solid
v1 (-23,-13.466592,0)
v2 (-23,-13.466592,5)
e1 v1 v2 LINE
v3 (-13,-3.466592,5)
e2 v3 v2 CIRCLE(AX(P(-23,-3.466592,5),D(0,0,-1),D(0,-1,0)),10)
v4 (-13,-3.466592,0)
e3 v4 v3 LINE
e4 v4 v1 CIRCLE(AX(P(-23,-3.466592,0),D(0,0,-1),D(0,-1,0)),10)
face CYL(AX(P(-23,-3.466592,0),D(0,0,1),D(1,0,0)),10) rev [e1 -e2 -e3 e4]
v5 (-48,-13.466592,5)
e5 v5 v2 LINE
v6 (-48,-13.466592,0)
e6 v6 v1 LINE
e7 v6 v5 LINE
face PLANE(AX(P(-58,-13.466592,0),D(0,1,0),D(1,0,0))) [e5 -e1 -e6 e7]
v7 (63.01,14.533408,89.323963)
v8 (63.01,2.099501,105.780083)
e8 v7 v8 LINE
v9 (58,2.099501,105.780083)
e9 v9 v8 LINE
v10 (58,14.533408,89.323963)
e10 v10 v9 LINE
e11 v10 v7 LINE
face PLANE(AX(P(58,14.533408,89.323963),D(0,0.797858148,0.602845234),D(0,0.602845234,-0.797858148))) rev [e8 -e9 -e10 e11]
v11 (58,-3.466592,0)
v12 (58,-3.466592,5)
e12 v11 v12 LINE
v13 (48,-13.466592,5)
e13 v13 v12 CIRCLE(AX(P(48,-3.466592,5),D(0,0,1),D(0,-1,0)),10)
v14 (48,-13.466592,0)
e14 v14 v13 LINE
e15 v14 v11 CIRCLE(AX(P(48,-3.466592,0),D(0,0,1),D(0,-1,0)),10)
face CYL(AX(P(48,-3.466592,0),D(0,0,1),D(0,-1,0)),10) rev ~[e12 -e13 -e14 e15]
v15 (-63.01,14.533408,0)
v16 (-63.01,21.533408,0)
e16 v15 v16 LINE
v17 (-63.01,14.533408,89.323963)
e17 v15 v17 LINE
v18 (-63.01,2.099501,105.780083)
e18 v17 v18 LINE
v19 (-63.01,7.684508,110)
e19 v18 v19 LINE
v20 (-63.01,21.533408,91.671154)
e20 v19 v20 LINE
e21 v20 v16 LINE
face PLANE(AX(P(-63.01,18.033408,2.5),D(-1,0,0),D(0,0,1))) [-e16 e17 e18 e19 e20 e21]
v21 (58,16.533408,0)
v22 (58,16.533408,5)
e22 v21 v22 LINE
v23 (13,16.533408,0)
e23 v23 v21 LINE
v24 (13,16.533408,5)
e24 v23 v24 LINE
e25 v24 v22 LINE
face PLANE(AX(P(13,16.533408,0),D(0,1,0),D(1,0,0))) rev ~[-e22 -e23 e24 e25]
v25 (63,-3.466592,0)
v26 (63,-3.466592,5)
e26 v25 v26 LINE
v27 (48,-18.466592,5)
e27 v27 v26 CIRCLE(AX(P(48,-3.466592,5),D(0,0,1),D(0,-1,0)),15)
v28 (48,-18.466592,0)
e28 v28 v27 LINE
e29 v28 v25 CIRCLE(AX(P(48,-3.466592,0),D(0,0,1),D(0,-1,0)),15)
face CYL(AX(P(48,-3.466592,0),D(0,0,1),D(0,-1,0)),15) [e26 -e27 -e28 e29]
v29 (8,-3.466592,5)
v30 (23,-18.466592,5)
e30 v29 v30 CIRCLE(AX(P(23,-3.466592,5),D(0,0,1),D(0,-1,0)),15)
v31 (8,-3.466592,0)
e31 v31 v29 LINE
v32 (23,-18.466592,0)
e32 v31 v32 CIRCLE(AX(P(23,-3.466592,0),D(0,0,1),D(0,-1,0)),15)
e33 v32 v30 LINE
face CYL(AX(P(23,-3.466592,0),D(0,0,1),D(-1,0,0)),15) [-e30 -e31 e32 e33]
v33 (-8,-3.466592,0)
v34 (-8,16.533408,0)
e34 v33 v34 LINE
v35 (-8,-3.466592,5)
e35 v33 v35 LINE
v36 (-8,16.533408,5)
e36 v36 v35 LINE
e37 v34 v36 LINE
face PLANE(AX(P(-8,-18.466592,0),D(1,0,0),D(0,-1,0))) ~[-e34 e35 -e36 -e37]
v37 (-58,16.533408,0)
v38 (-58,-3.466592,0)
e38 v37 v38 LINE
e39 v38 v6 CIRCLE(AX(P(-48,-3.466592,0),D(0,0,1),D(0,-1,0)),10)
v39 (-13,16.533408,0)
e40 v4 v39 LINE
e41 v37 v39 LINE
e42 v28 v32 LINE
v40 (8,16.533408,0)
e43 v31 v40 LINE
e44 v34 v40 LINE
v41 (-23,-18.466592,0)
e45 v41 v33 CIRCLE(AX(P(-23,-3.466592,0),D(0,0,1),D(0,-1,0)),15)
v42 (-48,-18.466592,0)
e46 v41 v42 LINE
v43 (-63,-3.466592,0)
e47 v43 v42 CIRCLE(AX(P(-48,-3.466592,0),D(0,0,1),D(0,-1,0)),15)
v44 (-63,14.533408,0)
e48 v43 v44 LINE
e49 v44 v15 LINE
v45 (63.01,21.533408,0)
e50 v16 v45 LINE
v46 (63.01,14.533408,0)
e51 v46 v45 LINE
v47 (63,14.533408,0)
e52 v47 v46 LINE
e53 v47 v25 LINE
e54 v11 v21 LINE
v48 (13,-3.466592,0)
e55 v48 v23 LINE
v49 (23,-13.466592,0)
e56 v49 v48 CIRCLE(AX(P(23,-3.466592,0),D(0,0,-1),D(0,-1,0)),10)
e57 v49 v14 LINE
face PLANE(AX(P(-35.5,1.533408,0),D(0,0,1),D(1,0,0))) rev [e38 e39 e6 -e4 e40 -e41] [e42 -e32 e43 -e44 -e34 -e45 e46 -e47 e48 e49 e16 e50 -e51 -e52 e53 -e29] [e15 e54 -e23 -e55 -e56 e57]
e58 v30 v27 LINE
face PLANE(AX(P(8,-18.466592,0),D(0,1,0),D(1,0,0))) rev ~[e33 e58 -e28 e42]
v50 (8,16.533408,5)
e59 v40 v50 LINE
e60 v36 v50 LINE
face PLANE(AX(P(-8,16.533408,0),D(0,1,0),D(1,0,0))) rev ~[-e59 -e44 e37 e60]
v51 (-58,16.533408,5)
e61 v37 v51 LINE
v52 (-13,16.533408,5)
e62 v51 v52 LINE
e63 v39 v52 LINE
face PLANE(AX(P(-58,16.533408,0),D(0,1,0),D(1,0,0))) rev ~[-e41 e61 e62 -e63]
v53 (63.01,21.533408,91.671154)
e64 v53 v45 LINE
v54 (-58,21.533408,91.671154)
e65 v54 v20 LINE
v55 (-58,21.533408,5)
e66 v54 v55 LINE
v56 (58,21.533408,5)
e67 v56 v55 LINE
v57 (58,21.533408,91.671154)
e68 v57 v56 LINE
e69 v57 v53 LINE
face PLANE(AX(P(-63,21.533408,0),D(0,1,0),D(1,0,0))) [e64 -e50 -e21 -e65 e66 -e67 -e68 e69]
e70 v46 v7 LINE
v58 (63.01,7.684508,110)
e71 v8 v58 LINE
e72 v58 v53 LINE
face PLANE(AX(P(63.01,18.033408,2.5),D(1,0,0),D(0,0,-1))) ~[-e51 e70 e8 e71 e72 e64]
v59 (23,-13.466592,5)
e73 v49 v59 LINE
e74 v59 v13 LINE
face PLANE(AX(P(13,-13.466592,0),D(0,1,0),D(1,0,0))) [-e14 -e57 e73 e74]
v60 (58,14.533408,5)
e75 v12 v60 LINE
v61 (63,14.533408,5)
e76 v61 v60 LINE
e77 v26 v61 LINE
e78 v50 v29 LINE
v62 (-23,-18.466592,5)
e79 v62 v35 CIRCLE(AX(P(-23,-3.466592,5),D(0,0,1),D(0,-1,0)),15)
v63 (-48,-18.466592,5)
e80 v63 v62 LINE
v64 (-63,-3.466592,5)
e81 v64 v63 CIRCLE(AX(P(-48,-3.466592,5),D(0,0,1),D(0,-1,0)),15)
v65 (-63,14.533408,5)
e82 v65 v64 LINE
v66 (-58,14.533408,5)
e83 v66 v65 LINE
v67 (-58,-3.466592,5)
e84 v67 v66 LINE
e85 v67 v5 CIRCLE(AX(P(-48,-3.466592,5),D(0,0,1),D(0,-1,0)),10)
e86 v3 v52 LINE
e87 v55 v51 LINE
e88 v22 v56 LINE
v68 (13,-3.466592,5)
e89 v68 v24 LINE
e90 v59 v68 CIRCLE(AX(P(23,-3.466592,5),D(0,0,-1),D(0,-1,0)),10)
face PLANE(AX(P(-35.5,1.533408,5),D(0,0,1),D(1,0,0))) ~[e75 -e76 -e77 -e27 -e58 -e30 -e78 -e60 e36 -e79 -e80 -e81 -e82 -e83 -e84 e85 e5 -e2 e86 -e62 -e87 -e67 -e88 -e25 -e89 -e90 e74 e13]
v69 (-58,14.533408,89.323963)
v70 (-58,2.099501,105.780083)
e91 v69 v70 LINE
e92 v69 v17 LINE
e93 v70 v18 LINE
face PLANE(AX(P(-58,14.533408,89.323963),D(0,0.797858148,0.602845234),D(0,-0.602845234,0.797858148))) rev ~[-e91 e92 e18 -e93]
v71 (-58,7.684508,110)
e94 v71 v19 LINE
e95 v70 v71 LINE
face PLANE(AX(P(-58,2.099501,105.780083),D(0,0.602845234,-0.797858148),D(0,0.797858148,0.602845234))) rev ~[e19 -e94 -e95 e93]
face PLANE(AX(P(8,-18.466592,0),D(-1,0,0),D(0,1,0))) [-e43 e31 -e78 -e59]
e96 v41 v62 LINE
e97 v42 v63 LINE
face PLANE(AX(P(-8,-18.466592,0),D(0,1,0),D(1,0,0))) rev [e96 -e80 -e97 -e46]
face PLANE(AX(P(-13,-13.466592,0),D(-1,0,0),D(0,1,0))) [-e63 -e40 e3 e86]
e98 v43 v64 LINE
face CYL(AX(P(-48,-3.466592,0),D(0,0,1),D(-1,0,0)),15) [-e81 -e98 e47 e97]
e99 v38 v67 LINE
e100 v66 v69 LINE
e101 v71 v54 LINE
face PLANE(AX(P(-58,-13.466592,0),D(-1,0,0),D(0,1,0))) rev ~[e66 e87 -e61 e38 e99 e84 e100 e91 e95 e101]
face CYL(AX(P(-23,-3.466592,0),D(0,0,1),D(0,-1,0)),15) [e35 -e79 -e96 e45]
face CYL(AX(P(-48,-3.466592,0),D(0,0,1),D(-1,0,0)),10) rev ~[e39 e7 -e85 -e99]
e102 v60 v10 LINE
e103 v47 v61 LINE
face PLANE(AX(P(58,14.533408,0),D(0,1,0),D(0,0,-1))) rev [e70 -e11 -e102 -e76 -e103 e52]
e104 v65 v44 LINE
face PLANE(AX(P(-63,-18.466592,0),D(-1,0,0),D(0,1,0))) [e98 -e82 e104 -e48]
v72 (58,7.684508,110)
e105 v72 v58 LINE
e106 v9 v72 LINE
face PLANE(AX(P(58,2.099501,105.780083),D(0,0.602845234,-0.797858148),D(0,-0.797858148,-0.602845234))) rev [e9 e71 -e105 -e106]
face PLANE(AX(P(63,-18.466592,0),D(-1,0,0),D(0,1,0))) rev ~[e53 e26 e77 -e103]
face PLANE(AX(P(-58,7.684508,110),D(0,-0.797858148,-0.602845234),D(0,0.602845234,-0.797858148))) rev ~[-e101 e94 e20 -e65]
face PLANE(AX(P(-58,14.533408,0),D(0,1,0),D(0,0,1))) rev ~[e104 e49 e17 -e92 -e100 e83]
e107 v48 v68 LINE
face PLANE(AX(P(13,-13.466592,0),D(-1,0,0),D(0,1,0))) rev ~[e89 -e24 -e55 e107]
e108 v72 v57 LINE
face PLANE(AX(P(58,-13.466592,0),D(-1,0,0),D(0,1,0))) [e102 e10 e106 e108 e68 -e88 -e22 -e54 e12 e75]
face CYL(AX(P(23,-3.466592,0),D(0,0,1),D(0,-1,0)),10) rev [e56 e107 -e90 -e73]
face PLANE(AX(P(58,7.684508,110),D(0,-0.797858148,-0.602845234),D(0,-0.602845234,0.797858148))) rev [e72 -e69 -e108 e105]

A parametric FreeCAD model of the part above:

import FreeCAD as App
import Part
import Sketcher

V = App.Vector
Q = App.Units.Quantity


def edges_at(feature, points):
    """Names of the edges that pass closest to the given points."""
    edges = feature.Shape.Edges
    near = lambda p: min(range(len(edges)), key=lambda i: edges[i].distToShape(Part.Vertex(*p))[0])
    return sorted({f"Edge{near(p) + 1}" for p in points})

doc = App.newDocument("Part")
body = doc.addObject("PartDesign::Body", "Body")

sketch1 = body.newObject("Sketcher::SketchObject", "Sketch")
sketch1.AttachmentSupport = (doc.getObject("XY_Plane"), [""])
sketch1.MapMode = "FlatFace"
sketch1.addGeometry([
    Part.LineSegment(V(8, 17, 0), V(8, -18, 0)),
    Part.LineSegment(V(8, -18, 0), V(63, -18, 0)),
    Part.LineSegment(V(63, -18, 0), V(63, 22, 0)),
    Part.LineSegment(V(63, 22, 0), V(-63, 22, 0)),
    Part.LineSegment(V(-63, 22, 0), V(-63, -18, 0)),
    Part.LineSegment(V(-63, -18, 0), V(-8, -18, 0)),
    Part.LineSegment(V(-8, -18, 0), V(-8, 17, 0)),
    Part.LineSegment(V(-8, 17, 0), V(8, 17, 0)),
    Part.LineSegment(V(58, -13, 0), V(13, -13, 0)),
    Part.LineSegment(V(13, -13, 0), V(13, 17, 0)),
    Part.LineSegment(V(13, 17, 0), V(58, 17, 0)),
    Part.LineSegment(V(58, 17, 0), V(58, -13, 0)),
    Part.LineSegment(V(-58, -13, 0), V(-58, 17, 0)),
    Part.LineSegment(V(-58, 17, 0), V(-13, 17, 0)),
    Part.LineSegment(V(-13, 17, 0), V(-13, -13, 0)),
    Part.LineSegment(V(-13, -13, 0), V(-58, -13, 0)),
], False)
sketch1.addConstraint([
    Sketcher.Constraint("Coincident", 0, 2, 1, 1),
    Sketcher.Constraint("Coincident", 1, 2, 2, 1),
    Sketcher.Constraint("Coincident", 2, 2, 3, 1),
    Sketcher.Constraint("Coincident", 3, 2, 4, 1),
    Sketcher.Constraint("Coincident", 4, 2, 5, 1),
    Sketcher.Constraint("Coincident", 5, 2, 6, 1),
    Sketcher.Constraint("Coincident", 6, 2, 7, 1),
    Sketcher.Constraint("Coincident", 7, 2, 0, 1),
    Sketcher.Constraint("Coincident", 8, 2, 9, 1),
    Sketcher.Constraint("Coincident", 9, 2, 10, 1),
    Sketcher.Constraint("Coincident", 10, 2, 11, 1),
    Sketcher.Constraint("Coincident", 11, 2, 8, 1),
    Sketcher.Constraint("Coincident", 12, 2, 13, 1),
    Sketcher.Constraint("Coincident", 13, 2, 14, 1),
    Sketcher.Constraint("Coincident", 14, 2, 15, 1),
    Sketcher.Constraint("Coincident", 15, 2, 12, 1),
    Sketcher.Constraint("Vertical", 0),
    Sketcher.Constraint("Horizontal", 1),
    Sketcher.Constraint("Vertical", 2),
    Sketcher.Constraint("Horizontal", 3),
    Sketcher.Constraint("Vertical", 4),
    Sketcher.Constraint("Horizontal", 5),
    Sketcher.Constraint("Vertical", 6),
    Sketcher.Constraint("Horizontal", 7),
    Sketcher.Constraint("Horizontal", 8),
    Sketcher.Constraint("Vertical", 9),
    Sketcher.Constraint("Horizontal", 10),
    Sketcher.Constraint("Vertical", 11),
    Sketcher.Constraint("Vertical", 12),
    Sketcher.Constraint("Horizontal", 13),
    Sketcher.Constraint("Vertical", 14),
    Sketcher.Constraint("Horizontal", 15),
    Sketcher.Constraint("Symmetric", 1, 2, 4, 2, -2),
    Sketcher.Constraint("Symmetric", 10, 2, 12, 2, -2),
    Sketcher.Constraint("Symmetric", 8, 2, 14, 2, -2),
    Sketcher.Constraint("Horizontal", 7, 2, 9, 2),
    Sketcher.Constraint("Equal", 1, 5),
    Sketcher.Constraint("DistanceX", 1, 1, 1, 2, Q("55 mm")),
    Sketcher.Constraint("DistanceX", 3, 2, 3, 1, Q("126 mm")),
    Sketcher.Constraint("DistanceX", 8, 2, 8, 1, Q("45 mm")),
    Sketcher.Constraint("DistanceY", 0, 2, 0, 1, Q("35 mm")),
    Sketcher.Constraint("DistanceY", 2, 1, 2, 2, Q("40 mm")),
    Sketcher.Constraint("DistanceY", 9, 1, 9, 2, Q("30 mm")),
    Sketcher.Constraint("DistanceX", -1, 1, 8, 2, Q("13 mm")),
    Sketcher.Constraint("DistanceY", 0, 2, -1, 1, Q("18.466592 mm")),
])
pad1 = body.newObject("PartDesign::Pad", "Pad")
pad1.Profile = sketch1
pad1.Length = 5
doc.recompute()

fillet = body.newObject("PartDesign::Fillet", "Fillet")
fillet.Base = (pad1, edges_at(pad1, [
    (-58, -13.467, 2.5),
    (-13, -13.467, 2.5),
    (13, -13.467, 2.5),
    (58, -13.467, 2.5),
]))
fillet.Radius = 10
doc.recompute()

fillet2 = body.newObject("PartDesign::Fillet", "Fillet001")
fillet2.Base = (fillet, edges_at(fillet, [
    (63, -18.467, 2.5),
    (8, -18.467, 2.5),
    (-8, -18.467, 2.5),
    (-63, -18.467, 2.5),
]))
fillet2.Radius = 15

sketch2 = body.newObject("Sketcher::SketchObject", "Sketch001")
sketch2.AttachmentSupport = (doc.getObject("YZ_Plane"), [""])
sketch2.MapMode = "FlatFace"
sketch2.AttachmentOffset = App.Placement(V(0, 0, -58), App.Rotation())
sketch2.addGeometry([
    Part.LineSegment(V(22, 0, 0), V(15, 0, 0)),
    Part.LineSegment(V(15, 0, 0), V(15, 89, 0)),
    Part.LineSegment(V(15, 89, 0), V(2, 106, 0)),
    Part.LineSegment(V(2, 106, 0), V(8, 110, 0)),
    Part.LineSegment(V(8, 110, 0), V(22, 92, 0)),
    Part.LineSegment(V(22, 92, 0), V(22, 0, 0)),
], False)
sketch2.addConstraint([
    Sketcher.Constraint("Coincident", 0, 2, 1, 1),
    Sketcher.Constraint("Coincident", 1, 2, 2, 1),
    Sketcher.Constraint("Coincident", 2, 2, 3, 1),
    Sketcher.Constraint("Coincident", 3, 2, 4, 1),
    Sketcher.Constraint("Coincident", 4, 2, 5, 1),
    Sketcher.Constraint("Coincident", 5, 2, 0, 1),
    Sketcher.Constraint("Horizontal", 0),
    Sketcher.Constraint("Vertical", 1),
    Sketcher.Constraint("Vertical", 5),
    Sketcher.Constraint("PointOnObject", 0, 2, -1),
    Sketcher.Constraint("Perpendicular", 2, 3),
    Sketcher.Constraint("Perpendicular", 3, 4),
    Sketcher.Constraint("DistanceX", 0, 2, 0, 1, Q("7 mm")),
    Sketcher.Constraint("Distance", 3, Q("7 mm")),
    Sketcher.Constraint("DistanceY", -1, 1, 3, 2, Q("110 mm")),
    Sketcher.Constraint("DistanceX", -1, 1, 2, 2, Q("2.099501 mm")),
    Sketcher.Constraint("DistanceX", 3, 2, 1, 2, Q("6.848899 mm")),
    Sketcher.Constraint("Distance", 2, Q("20.625371 mm")),
])
pad2 = body.newObject("PartDesign::Pad", "Pad001")
pad2.Profile = sketch2
pad2.Length = 5.01
pad2.Reversed = True
doc.recompute()

mirrored = body.newObject("PartDesign::Mirrored", "Mirrored")
mirrored.Originals = [pad1, pad2]
mirrored.MirrorPlane = (doc.getObject("YZ_Plane"), [""])
body.Tip = mirrored
doc.recompute()

fillet3 = body.newObject("PartDesign::Fillet", "Fillet002")
fillet3.Base = (mirrored, edges_at(mirrored, [
    (63, -18.467, 2.5),
    (-8, -18.467, 2.5),
    (-63, -18.467, 2.5),
    (8, -18.467, 2.5),
]))
fillet3.Radius = 15

doc.recompute()
